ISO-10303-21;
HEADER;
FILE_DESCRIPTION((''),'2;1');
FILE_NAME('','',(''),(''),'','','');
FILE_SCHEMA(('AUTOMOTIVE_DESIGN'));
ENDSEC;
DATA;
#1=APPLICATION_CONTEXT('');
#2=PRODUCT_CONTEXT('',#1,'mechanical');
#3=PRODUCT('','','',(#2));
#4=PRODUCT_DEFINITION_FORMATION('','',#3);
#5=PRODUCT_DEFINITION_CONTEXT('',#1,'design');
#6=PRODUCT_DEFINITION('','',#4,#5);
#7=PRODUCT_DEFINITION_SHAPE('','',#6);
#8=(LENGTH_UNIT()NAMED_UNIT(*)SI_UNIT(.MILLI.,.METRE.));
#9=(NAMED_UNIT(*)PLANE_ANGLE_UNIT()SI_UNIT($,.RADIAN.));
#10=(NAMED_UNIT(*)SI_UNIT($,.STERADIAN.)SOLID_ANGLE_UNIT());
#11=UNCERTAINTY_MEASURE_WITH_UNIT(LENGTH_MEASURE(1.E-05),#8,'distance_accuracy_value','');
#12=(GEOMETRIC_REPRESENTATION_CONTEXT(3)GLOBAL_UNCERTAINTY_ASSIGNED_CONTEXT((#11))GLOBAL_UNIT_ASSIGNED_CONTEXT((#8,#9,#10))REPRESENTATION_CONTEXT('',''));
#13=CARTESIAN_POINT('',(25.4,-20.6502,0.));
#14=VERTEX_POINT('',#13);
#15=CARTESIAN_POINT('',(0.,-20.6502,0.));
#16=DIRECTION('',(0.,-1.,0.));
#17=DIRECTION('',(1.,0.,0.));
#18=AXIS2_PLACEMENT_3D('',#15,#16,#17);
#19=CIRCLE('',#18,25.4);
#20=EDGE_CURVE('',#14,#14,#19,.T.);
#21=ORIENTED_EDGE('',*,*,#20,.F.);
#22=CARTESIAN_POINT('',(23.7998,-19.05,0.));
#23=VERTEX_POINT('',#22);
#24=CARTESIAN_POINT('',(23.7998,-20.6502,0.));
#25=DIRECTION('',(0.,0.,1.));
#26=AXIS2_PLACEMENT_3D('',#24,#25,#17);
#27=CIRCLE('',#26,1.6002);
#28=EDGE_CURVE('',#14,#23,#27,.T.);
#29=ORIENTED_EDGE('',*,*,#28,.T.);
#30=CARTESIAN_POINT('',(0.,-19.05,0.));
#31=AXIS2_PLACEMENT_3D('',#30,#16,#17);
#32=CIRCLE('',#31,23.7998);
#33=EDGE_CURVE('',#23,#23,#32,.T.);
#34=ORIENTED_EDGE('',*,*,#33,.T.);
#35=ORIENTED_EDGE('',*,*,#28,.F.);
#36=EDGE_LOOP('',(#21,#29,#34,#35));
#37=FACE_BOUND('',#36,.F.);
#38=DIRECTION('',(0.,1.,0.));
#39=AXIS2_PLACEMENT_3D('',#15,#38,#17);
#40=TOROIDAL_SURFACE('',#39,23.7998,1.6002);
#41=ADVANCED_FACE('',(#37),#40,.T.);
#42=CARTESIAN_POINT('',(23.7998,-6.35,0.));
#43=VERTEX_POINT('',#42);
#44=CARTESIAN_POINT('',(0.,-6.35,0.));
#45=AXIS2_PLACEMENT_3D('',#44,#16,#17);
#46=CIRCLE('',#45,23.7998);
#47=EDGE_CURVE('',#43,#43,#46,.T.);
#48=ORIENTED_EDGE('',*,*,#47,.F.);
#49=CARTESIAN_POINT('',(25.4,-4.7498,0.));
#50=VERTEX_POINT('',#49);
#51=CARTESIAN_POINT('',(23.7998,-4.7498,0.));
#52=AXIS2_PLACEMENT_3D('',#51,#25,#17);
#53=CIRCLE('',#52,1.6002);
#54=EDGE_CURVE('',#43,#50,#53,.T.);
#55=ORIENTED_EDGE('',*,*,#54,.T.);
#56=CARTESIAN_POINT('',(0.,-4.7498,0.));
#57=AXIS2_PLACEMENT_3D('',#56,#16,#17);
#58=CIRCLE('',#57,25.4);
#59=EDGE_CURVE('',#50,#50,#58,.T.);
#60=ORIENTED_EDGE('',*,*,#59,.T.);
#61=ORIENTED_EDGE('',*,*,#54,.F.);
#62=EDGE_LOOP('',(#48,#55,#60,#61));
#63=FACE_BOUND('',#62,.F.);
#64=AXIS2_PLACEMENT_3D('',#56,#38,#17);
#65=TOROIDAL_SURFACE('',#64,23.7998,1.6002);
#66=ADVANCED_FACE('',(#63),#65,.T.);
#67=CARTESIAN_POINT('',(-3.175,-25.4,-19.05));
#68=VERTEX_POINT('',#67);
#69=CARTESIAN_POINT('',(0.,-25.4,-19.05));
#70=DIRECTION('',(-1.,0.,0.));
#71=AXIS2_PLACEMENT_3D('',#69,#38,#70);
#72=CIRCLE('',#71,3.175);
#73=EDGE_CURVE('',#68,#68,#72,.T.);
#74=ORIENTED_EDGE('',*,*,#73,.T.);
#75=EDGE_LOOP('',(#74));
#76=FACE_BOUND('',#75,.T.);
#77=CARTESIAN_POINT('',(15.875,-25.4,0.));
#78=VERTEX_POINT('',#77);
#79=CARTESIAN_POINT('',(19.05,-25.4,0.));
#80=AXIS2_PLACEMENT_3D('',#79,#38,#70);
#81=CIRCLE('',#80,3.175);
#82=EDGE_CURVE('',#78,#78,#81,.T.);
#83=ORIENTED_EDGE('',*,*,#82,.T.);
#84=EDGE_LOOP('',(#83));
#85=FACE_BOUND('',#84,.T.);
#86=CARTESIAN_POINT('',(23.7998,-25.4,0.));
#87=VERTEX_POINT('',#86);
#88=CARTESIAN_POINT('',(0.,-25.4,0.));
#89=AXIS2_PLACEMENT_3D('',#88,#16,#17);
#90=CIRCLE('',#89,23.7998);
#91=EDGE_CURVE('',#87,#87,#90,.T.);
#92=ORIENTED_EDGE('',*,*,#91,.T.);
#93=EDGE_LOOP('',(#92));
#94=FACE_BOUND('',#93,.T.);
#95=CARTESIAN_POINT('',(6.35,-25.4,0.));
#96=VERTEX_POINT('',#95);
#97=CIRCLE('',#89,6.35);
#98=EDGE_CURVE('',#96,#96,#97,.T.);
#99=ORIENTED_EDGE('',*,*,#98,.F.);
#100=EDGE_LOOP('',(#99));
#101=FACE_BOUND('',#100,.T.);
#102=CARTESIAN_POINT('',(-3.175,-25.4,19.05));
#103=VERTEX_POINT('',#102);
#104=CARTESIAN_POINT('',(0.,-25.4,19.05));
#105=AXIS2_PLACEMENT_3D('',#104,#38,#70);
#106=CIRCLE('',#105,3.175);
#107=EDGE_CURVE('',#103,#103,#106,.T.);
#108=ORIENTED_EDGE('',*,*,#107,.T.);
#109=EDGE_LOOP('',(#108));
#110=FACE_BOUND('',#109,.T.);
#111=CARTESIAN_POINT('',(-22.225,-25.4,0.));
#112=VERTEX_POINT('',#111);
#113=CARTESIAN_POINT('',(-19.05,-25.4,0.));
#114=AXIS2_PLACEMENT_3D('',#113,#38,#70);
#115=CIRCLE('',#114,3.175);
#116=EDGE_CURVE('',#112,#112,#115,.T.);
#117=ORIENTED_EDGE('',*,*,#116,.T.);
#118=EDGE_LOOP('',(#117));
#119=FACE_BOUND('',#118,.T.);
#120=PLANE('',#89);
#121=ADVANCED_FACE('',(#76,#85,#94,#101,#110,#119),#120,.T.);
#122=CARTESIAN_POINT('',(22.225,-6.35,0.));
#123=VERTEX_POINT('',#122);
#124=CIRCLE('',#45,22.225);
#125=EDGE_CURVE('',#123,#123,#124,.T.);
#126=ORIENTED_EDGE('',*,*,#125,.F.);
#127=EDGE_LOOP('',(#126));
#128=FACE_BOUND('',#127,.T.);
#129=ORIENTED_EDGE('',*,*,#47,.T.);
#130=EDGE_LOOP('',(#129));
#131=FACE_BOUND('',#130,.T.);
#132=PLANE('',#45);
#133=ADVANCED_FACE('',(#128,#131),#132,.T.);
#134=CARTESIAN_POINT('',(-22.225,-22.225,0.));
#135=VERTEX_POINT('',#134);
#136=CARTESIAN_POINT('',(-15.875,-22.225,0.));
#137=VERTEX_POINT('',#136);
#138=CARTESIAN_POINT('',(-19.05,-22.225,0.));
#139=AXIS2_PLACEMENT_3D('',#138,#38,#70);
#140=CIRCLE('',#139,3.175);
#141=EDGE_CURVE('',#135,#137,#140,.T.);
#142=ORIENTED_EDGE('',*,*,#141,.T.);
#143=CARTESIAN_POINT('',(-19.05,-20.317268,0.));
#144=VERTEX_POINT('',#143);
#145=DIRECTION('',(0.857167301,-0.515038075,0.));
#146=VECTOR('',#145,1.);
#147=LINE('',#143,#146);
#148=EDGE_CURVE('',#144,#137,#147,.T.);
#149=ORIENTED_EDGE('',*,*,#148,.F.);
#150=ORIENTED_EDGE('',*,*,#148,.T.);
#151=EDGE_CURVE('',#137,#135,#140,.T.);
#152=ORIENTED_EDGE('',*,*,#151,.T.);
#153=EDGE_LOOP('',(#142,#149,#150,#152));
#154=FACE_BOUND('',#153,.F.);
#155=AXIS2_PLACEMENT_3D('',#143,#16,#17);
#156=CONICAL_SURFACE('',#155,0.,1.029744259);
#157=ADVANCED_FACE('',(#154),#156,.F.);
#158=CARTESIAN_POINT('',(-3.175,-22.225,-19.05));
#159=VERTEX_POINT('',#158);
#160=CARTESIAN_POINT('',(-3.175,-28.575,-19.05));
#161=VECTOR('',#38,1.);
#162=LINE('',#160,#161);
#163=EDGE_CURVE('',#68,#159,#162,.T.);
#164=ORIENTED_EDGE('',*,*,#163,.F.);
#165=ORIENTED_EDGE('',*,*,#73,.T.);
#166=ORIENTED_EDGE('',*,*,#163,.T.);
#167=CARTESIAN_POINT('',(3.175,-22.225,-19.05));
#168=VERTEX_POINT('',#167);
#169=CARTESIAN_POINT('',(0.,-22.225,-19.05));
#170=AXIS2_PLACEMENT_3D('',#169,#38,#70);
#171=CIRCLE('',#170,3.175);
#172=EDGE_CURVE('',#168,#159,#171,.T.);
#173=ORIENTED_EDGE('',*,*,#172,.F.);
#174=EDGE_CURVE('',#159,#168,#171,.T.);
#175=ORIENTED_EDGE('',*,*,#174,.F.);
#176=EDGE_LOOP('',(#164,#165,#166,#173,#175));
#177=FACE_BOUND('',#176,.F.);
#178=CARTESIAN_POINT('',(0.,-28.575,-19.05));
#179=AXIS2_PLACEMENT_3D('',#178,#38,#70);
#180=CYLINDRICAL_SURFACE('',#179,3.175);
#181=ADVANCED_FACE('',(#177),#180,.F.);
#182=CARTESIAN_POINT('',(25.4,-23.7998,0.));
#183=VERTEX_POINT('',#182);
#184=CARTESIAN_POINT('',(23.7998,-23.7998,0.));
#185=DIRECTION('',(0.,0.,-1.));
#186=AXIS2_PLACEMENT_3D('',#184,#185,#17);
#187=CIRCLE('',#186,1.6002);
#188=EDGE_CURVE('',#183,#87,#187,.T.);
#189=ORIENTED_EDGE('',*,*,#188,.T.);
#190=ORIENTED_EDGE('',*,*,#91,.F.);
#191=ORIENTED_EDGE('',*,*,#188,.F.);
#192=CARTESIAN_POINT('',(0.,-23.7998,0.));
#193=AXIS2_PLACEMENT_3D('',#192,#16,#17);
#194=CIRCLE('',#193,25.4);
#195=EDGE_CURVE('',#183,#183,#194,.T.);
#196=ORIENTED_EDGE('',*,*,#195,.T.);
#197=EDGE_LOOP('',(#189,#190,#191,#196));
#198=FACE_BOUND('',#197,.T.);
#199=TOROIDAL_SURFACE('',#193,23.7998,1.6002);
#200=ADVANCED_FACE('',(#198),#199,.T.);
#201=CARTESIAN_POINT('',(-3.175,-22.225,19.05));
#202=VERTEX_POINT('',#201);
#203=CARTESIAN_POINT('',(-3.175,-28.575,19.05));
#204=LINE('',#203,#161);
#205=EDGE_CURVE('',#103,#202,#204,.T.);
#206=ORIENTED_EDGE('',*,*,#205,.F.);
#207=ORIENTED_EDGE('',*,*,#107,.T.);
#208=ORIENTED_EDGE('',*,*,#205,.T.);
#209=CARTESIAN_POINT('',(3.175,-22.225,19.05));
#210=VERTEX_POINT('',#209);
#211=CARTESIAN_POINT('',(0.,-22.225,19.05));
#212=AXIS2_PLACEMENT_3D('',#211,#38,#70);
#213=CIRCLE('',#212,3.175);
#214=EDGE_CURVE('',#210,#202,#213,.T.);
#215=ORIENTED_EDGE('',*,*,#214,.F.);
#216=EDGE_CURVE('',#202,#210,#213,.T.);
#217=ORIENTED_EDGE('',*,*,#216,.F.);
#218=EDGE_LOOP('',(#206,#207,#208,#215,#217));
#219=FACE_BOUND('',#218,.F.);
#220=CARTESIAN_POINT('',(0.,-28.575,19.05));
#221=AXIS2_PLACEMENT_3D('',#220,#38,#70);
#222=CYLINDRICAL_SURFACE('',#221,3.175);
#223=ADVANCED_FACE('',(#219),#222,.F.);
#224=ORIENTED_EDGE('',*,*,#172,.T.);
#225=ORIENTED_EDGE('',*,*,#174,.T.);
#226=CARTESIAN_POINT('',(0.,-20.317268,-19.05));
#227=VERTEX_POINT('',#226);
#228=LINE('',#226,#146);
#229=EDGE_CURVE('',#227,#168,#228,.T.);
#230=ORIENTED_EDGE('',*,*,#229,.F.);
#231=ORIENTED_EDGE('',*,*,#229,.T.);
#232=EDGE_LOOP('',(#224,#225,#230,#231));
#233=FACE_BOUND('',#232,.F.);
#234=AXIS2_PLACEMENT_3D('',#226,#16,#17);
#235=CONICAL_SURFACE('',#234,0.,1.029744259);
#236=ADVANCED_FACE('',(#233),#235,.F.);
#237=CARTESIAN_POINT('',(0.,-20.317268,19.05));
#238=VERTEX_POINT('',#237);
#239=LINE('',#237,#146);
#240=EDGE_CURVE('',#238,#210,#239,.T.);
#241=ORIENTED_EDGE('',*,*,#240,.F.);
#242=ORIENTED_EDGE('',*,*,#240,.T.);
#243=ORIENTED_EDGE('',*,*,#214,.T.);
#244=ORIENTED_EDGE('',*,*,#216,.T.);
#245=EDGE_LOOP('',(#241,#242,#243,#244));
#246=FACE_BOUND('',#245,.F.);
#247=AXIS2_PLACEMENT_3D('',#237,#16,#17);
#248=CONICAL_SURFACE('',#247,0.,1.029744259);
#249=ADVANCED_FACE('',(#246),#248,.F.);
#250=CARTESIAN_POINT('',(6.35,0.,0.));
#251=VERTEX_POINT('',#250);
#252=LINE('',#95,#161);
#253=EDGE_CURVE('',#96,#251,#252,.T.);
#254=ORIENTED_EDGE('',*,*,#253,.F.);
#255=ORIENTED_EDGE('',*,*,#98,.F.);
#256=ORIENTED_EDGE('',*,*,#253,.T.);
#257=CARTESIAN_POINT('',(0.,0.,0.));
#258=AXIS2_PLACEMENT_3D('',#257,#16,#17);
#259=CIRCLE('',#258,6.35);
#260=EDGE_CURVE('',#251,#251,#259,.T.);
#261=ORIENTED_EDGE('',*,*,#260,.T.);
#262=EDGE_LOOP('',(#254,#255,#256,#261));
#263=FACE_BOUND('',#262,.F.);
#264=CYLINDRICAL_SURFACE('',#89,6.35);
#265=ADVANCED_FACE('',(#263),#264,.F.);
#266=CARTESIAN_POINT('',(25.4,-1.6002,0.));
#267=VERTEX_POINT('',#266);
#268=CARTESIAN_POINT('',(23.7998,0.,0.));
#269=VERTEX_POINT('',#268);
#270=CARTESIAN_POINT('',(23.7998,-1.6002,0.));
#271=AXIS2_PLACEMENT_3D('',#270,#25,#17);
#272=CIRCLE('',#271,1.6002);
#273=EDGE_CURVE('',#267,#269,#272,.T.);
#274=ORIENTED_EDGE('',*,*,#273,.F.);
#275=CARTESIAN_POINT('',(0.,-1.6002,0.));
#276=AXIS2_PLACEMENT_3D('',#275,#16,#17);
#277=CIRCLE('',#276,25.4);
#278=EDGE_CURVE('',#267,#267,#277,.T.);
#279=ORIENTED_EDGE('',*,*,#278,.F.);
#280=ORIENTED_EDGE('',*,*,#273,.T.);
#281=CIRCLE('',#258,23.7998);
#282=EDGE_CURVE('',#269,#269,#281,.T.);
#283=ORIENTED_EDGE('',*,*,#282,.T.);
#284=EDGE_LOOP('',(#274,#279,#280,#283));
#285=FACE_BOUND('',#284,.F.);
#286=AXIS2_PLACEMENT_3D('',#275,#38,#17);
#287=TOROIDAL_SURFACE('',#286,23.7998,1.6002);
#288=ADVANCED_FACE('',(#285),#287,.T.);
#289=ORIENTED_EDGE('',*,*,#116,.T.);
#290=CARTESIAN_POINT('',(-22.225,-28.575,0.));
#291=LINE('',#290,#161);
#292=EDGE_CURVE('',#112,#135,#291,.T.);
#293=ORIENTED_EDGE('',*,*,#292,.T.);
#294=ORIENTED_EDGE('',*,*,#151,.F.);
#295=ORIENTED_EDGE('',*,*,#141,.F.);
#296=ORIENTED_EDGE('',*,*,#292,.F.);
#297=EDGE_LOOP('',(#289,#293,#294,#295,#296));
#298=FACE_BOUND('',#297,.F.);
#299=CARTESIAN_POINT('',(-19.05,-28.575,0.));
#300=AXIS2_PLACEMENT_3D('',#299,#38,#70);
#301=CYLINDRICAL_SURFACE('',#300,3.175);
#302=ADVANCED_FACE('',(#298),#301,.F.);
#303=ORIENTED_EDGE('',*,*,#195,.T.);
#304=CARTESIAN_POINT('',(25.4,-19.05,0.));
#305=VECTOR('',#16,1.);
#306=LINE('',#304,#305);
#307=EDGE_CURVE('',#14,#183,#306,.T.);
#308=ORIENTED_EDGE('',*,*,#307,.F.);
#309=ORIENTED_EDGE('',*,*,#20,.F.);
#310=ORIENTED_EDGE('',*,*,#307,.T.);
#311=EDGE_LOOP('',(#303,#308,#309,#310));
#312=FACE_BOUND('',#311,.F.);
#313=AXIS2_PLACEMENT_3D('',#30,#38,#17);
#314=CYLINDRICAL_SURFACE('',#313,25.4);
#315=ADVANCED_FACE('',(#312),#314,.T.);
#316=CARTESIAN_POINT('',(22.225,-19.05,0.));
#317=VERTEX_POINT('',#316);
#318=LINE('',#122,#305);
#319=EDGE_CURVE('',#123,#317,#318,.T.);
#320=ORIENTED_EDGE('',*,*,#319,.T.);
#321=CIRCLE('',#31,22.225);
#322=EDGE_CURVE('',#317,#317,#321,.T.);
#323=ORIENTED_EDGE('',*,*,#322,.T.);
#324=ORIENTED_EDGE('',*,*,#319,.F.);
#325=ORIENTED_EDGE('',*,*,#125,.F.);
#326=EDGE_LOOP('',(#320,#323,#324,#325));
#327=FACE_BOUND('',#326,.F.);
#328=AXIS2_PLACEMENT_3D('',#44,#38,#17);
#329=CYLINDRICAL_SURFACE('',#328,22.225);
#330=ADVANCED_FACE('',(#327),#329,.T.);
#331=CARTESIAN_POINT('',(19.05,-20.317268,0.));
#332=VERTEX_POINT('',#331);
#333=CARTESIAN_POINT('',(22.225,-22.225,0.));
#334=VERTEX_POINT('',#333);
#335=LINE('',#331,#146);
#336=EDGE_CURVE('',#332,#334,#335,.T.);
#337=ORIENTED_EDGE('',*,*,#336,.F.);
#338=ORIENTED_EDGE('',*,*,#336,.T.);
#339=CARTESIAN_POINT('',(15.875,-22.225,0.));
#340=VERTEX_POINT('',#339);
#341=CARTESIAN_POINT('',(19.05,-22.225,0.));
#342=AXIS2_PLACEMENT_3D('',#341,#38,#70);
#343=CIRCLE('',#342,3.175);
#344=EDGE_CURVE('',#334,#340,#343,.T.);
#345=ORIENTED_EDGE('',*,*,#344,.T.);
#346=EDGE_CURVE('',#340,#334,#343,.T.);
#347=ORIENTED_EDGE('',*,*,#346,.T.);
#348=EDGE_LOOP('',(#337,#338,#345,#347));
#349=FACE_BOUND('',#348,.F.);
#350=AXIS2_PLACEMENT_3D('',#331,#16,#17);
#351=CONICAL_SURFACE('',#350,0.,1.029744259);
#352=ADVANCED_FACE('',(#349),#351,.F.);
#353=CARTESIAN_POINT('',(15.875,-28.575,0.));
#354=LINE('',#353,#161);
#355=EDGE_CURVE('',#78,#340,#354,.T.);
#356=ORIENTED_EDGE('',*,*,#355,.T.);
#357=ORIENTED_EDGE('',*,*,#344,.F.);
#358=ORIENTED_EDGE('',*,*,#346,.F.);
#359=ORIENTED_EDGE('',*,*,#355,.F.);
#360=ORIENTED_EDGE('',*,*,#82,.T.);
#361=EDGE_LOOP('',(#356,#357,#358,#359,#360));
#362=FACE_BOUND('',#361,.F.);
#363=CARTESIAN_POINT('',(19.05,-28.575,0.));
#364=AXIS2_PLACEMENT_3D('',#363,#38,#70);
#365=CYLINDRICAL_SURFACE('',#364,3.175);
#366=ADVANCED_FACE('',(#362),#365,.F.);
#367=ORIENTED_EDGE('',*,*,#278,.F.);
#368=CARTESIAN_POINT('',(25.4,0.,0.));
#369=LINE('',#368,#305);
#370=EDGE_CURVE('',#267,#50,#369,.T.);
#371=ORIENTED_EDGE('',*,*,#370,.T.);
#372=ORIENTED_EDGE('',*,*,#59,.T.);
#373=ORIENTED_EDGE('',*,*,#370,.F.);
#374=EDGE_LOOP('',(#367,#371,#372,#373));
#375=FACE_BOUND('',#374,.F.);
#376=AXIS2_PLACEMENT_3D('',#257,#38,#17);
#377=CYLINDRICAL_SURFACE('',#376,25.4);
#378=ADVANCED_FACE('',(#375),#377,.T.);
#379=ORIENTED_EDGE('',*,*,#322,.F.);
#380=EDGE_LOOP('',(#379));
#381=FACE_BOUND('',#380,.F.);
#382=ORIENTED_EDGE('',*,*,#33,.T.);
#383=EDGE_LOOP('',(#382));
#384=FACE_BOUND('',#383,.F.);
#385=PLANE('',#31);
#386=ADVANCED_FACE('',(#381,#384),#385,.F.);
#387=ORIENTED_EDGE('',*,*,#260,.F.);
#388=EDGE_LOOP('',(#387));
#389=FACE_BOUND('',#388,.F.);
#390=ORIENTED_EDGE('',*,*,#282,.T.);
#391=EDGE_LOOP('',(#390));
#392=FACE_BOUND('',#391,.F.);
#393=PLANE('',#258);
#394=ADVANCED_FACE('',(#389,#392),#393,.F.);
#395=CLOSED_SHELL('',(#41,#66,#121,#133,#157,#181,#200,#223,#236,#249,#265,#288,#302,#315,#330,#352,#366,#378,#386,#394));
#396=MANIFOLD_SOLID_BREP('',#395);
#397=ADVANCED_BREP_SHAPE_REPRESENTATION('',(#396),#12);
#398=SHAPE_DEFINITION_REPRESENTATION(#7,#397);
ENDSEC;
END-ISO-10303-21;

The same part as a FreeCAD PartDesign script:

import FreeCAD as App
import Part
import Sketcher

V = App.Vector
Q = App.Units.Quantity


def edges_at(feature, points):
    """Names of the edges that pass closest to the given points."""
    edges = feature.Shape.Edges
    near = lambda p: min(range(len(edges)), key=lambda i: edges[i].distToShape(Part.Vertex(*p))[0])
    return sorted({f"Edge{near(p) + 1}" for p in points})

doc = App.newDocument("Part")
params = doc.addObject("Spreadsheet::Sheet", "Params")
for row, (alias, value) in enumerate([
    ("sketch1_diameter", "2 in"),
    ("pad1_length", "0.25 in"),
    ("sketch2_diameter", "1.75 in"),
    ("pad2_length", "0.5 in"),
    ("sketch3_diameter", "2 in"),
    ("pad3_length", "0.25 in"),
    ("sketch4_diameter", "0.25 in"),
    ("hole_diameter", "0.25 in"),
    ("hole_depth", "0.125 in"),
    ("fillet_radius", "0.063 in"),
    ("sketch5_diameter", "0.5 in"),
], start=1):
    params.set(f"A{row}", alias)
    params.set(f"B{row}", "=" + value)
    params.setAlias(f"B{row}", alias)

body = doc.addObject("PartDesign::Body", "Body")

# Sketch on XZ plane
sketch1 = doc.addObject("Sketcher::SketchObject", "Sketch")
body.addObject(sketch1)
sketch1.AttachmentSupport = (doc.XZ_Plane, [""])
sketch1.MapMode = "FlatFace"
sketch1.addGeometry(Part.Circle(V(0, 0, 0), V(0, 0, 1), 25.4), False)
sketch1.addConstraint(Sketcher.Constraint("Coincident", 0, 3, -1, 1))
sketch1.addConstraint(Sketcher.Constraint("Diameter", 0, Q("2 in")))
sketch1.setExpression("Constraints[1]", "Params.sketch1_diameter")
pad1 = doc.addObject("PartDesign::Pad", "Pad")
body.addObject(pad1)
pad1.Profile = sketch1
pad1.setExpression("Length", "Params.pad1_length")

# Sketch on XZ plane
sketch2 = doc.addObject("Sketcher::SketchObject", "Sketch001")
body.addObject(sketch2)
sketch2.AttachmentSupport = (doc.XZ_Plane, [""])
sketch2.MapMode = "FlatFace"
sketch2.AttachmentOffset = App.Placement(V(0, 0, 0.25 * 25.4), App.Rotation())
sketch2.addGeometry(Part.Circle(V(0, 0, 0), V(0, 0, 1), 22.225), False)
sketch2.addConstraint(Sketcher.Constraint("Coincident", 0, 3, -1, 1))
sketch2.addConstraint(Sketcher.Constraint("Diameter", 0, Q("1.75 in")))
sketch2.setExpression("Constraints[1]", "Params.sketch2_diameter")
pad2 = doc.addObject("PartDesign::Pad", "Pad001")
body.addObject(pad2)
pad2.Profile = sketch2
pad2.setExpression("Length", "Params.pad2_length")

# Sketch on XZ plane
sketch3 = doc.addObject("Sketcher::SketchObject", "Sketch002")
body.addObject(sketch3)
sketch3.AttachmentSupport = (doc.XZ_Plane, [""])
sketch3.MapMode = "FlatFace"
sketch3.AttachmentOffset = App.Placement(V(0, 0, 0.75 * 25.4), App.Rotation())
sketch3.addGeometry(Part.Circle(V(0, 0, 0), V(0, 0, 1), 25.4), False)
sketch3.addConstraint(Sketcher.Constraint("Coincident", 0, 3, -1, 1))
sketch3.addConstraint(Sketcher.Constraint("Diameter", 0, Q("2 in")))
sketch3.setExpression("Constraints[1]", "Params.sketch3_diameter")
pad3 = doc.addObject("PartDesign::Pad", "Pad002")
body.addObject(pad3)
pad3.Profile = sketch3
pad3.setExpression("Length", "Params.pad3_length")

# Sketch on XZ plane
sketch4 = doc.addObject("Sketcher::SketchObject", "Sketch003")
body.addObject(sketch4)
sketch4.AttachmentSupport = (doc.XZ_Plane, [""])
sketch4.MapMode = "FlatFace"
sketch4.AttachmentOffset = App.Placement(V(0, 0, 1 * 25.4), App.Rotation())
sketch4.addGeometry(Part.Circle(V(0, 19.05, 0), V(0, 0, 1), 3.175), False)
sketch4.addGeometry(Part.Circle(V(19.05, 0, 0), V(0, 0, 1), 3.175), False)
sketch4.addGeometry(Part.Circle(V(0, -19.05, 0), V(0, 0, 1), 3.175), False)
sketch4.addGeometry(Part.Circle(V(-19.05, 0, 0), V(0, 0, 1), 3.175), False)
sketch4.addConstraint(Sketcher.Constraint("Equal", 0, 1))
sketch4.addConstraint(Sketcher.Constraint("Equal", 1, 2))
sketch4.addConstraint(Sketcher.Constraint("Equal", 2, 3))
sketch4.addConstraint(Sketcher.Constraint("Symmetric", 0, 3, 2, 3, -1, 1))
sketch4.addConstraint(Sketcher.Constraint("Symmetric", 1, 3, 3, 3, -1, 1))
sketch4.addConstraint(Sketcher.Constraint("PointOnObject", 0, 3, -2))
sketch4.addConstraint(Sketcher.Constraint("PointOnObject", 1, 3, -1))
sketch4.addConstraint(Sketcher.Constraint("Diameter", 0, Q("0.25 in")))
sketch4.addConstraint(Sketcher.Constraint("DistanceY", 2, 3, 0, 3, Q("1.5 in")))
sketch4.addConstraint(Sketcher.Constraint("DistanceX", 3, 3, 1, 3, Q("1.5 in")))
sketch4.setExpression("Constraints[7]", "Params.sketch4_diameter")
doc.recompute()
hole = doc.addObject("PartDesign::Hole", "Hole")
body.addObject(hole)
hole.Profile = sketch4
hole.ThreadType = "None"
hole.setExpression("Diameter", "Params.hole_diameter")
hole.DepthType = "Dimension"
hole.setExpression("Depth", "Params.hole_depth")
hole.DrillPoint = "Angled"
hole.DrillPointAngle = 118
doc.recompute()

fillet = doc.addObject("PartDesign::Fillet", "Fillet")
body.addObject(fillet)
fillet.Base = (hole, edges_at(hole, [
    (-25.4, -25.4, 0),
    (-25.4, -19.05, 0),
    (-25.4, -6.35, 0),
    (-25.4, 0, 0),
]))
fillet.setExpression("Radius", "Params.fillet_radius")

# Sketch on XZ plane
sketch5 = doc.addObject("Sketcher::SketchObject", "Sketch004")
body.addObject(sketch5)
sketch5.AttachmentSupport = (doc.XZ_Plane, [""])
sketch5.MapMode = "FlatFace"
sketch5.AttachmentOffset = App.Placement(V(0, 0, 1 * 25.4), App.Rotation())
sketch5.addGeometry(Part.Circle(V(0, 0, 0), V(0, 0, 1), 6.35), False)
sketch5.addConstraint(Sketcher.Constraint("Coincident", 0, 3, -1, 1))
sketch5.addConstraint(Sketcher.Constraint("Diameter", 0, Q("0.5 in")))
sketch5.setExpression("Constraints[1]", "Params.sketch5_diameter")
pocket1 = doc.addObject("PartDesign::Pocket", "Pocket")
body.addObject(pocket1)
pocket1.Profile = sketch5
pocket1.Type = "ThroughAll"

doc.recompute()
